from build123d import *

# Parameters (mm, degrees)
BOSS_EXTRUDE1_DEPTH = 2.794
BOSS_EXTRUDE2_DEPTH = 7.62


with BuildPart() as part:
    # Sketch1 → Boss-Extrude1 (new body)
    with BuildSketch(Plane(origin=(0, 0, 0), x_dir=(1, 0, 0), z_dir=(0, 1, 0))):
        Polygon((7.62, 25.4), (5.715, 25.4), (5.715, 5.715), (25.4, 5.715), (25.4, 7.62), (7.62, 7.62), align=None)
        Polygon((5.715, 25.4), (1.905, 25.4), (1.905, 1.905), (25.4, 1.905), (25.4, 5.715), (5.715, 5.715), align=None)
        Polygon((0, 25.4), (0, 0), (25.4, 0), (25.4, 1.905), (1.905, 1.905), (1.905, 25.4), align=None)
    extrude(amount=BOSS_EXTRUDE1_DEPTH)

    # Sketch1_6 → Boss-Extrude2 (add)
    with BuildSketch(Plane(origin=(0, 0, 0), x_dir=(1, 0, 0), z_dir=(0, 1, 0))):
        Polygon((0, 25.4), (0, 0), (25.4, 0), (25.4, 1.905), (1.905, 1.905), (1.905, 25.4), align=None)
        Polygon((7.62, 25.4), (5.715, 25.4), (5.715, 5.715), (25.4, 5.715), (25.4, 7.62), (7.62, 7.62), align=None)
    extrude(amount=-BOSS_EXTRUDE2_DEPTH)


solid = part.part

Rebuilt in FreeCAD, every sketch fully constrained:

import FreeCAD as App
import Part
import Sketcher

V = App.Vector
Q = App.Units.Quantity

doc = App.newDocument("Part")
body = doc.addObject("PartDesign::Body", "Body")

sketch1 = body.newObject("Sketcher::SketchObject", "Sketch")
sketch1.AttachmentSupport = (doc.getObject("XZ_Plane"), [""])
sketch1.MapMode = "FlatFace"
sketch1.addGeometry(Part.LineSegment(V(8, -25, 0), V(0, -25, 0)), False)
sketch1.addGeometry(Part.LineSegment(V(0, -25, 0), V(0, 0, 0)), False)
sketch1.addGeometry(Part.LineSegment(V(0, 0, 0), V(25, 0, 0)), False)
sketch1.addGeometry(Part.LineSegment(V(25, 0, 0), V(25, -8, 0)), False)
sketch1.addGeometry(Part.LineSegment(V(25, -8, 0), V(8, -8, 0)), False)
sketch1.addGeometry(Part.LineSegment(V(8, -8, 0), V(8, -25, 0)), False)
sketch1.addConstraint(Sketcher.Constraint("Coincident", 0, 2, 1, 1))
sketch1.addConstraint(Sketcher.Constraint("Coincident", 1, 2, 2, 1))
sketch1.addConstraint(Sketcher.Constraint("Coincident", 2, 2, 3, 1))
sketch1.addConstraint(Sketcher.Constraint("Coincident", 3, 2, 4, 1))
sketch1.addConstraint(Sketcher.Constraint("Coincident", 4, 2, 5, 1))
sketch1.addConstraint(Sketcher.Constraint("Coincident", 5, 2, 0, 1))
sketch1.addConstraint(Sketcher.Constraint("Horizontal", 0))
sketch1.addConstraint(Sketcher.Constraint("Vertical", 1))
sketch1.addConstraint(Sketcher.Constraint("Horizontal", 2))
sketch1.addConstraint(Sketcher.Constraint("Vertical", 3))
sketch1.addConstraint(Sketcher.Constraint("Horizontal", 4))
sketch1.addConstraint(Sketcher.Constraint("Vertical", 5))
sketch1.addConstraint(Sketcher.Constraint("Coincident", 1, 2, -1, 1))
sketch1.addConstraint(Sketcher.Constraint("Equal", 2, 1))
sketch1.addConstraint(Sketcher.Constraint("Equal", 0, 3))
sketch1.addConstraint(Sketcher.Constraint("DistanceX", 2, 1, 2, 2, Q("1 in")))
sketch1.addConstraint(Sketcher.Constraint("DistanceX", 0, 2, 0, 1, Q("0.3 in")))
pad1 = body.newObject("PartDesign::Pad", "Pad")
pad1.Profile = sketch1
pad1.Length = Q("0.11 in")
pad1.Reversed = True

sketch2 = body.newObject("Sketcher::SketchObject", "Sketch001")
sketch2.AttachmentSupport = (doc.getObject("XZ_Plane"), [""])
sketch2.MapMode = "FlatFace"
sketch2.addGeometry(Part.LineSegment(V(0, -25.4, 0), V(0, 0, 0)), False)
sketch2.addGeometry(Part.LineSegment(V(0, 0, 0), V(25.4, 0, 0)), False)
sketch2.addGeometry(Part.LineSegment(V(25.4, 0, 0), V(25.4, -1.9, 0)), False)
sketch2.addGeometry(Part.LineSegment(V(25.4, -1.9, 0), V(1.9, -1.9, 0)), False)
sketch2.addGeometry(Part.LineSegment(V(1.9, -1.9, 0), V(1.9, -25.4, 0)), False)
sketch2.addGeometry(Part.LineSegment(V(1.9, -25.4, 0), V(0, -25.4, 0)), False)
sketch2.addGeometry(Part.LineSegment(V(7.6, -25.4, 0), V(5.7, -25.4, 0)), False)
sketch2.addGeometry(Part.LineSegment(V(5.7, -25.4, 0), V(5.7, -5.7, 0)), False)
sketch2.addGeometry(Part.LineSegment(V(5.7, -5.7, 0), V(25.4, -5.7, 0)), False)
sketch2.addGeometry(Part.LineSegment(V(25.4, -5.7, 0), V(25.4, -7.6, 0)), False)
sketch2.addGeometry(Part.LineSegment(V(25.4, -7.6, 0), V(7.6, -7.6, 0)), False)
sketch2.addGeometry(Part.LineSegment(V(7.6, -7.6, 0), V(7.6, -25.4, 0)), False)
sketch2.addConstraint(Sketcher.Constraint("Coincident", 0, 2, 1, 1))
sketch2.addConstraint(Sketcher.Constraint("Coincident", 1, 2, 2, 1))
sketch2.addConstraint(Sketcher.Constraint("Coincident", 2, 2, 3, 1))
sketch2.addConstraint(Sketcher.Constraint("Coincident", 3, 2, 4, 1))
sketch2.addConstraint(Sketcher.Constraint("Coincident", 4, 2, 5, 1))
sketch2.addConstraint(Sketcher.Constraint("Coincident", 5, 2, 0, 1))
sketch2.addConstraint(Sketcher.Constraint("Coincident", 6, 2, 7, 1))
sketch2.addConstraint(Sketcher.Constraint("Coincident", 7, 2, 8, 1))
sketch2.addConstraint(Sketcher.Constraint("Coincident", 8, 2, 9, 1))
sketch2.addConstraint(Sketcher.Constraint("Coincident", 9, 2, 10, 1))
sketch2.addConstraint(Sketcher.Constraint("Coincident", 10, 2, 11, 1))
sketch2.addConstraint(Sketcher.Constraint("Coincident", 11, 2, 6, 1))
sketch2.addConstraint(Sketcher.Constraint("Vertical", 0))
sketch2.addConstraint(Sketcher.Constraint("Horizontal", 1))
sketch2.addConstraint(Sketcher.Constraint("Vertical", 2))
sketch2.addConstraint(Sketcher.Constraint("Horizontal", 3))
sketch2.addConstraint(Sketcher.Constraint("Vertical", 4))
sketch2.addConstraint(Sketcher.Constraint("Horizontal", 5))
sketch2.addConstraint(Sketcher.Constraint("Horizontal", 6))
sketch2.addConstraint(Sketcher.Constraint("Vertical", 7))
sketch2.addConstraint(Sketcher.Constraint("Horizontal", 8))
sketch2.addConstraint(Sketcher.Constraint("Vertical", 9))
sketch2.addConstraint(Sketcher.Constraint("Horizontal", 10))
sketch2.addConstraint(Sketcher.Constraint("Vertical", 11))
sketch2.addConstraint(Sketcher.Constraint("Coincident", 0, 2, -1, 1))
sketch2.addConstraint(Sketcher.Constraint("Horizontal", 5, 2, 6, 2))
sketch2.addConstraint(Sketcher.Constraint("Vertical", 2, 2, 8, 2))
sketch2.addConstraint(Sketcher.Constraint("Equal", 5, 6))
sketch2.addConstraint(Sketcher.Constraint("Equal", 1, 0))
sketch2.addConstraint(Sketcher.Constraint("Equal", 6, 2))
sketch2.addConstraint(Sketcher.Constraint("Equal", 8, 7))
sketch2.addConstraint(Sketcher.Constraint("Equal", 2, 9))
sketch2.addConstraint(Sketcher.Constraint("DistanceX", 1, 1, 1, 2, Q("1 in")))
sketch2.addConstraint(Sketcher.Constraint("DistanceX", 10, 2, 10, 1, Q("0.7 in")))
sketch2.addConstraint(Sketcher.Constraint("DistanceX", 3, 2, 3, 1, Q("0.925 in")))
pad2 = body.newObject("PartDesign::Pad", "Pad001")
pad2.Profile = sketch2
pad2.Length = Q("0.3 in")

doc.recompute()
